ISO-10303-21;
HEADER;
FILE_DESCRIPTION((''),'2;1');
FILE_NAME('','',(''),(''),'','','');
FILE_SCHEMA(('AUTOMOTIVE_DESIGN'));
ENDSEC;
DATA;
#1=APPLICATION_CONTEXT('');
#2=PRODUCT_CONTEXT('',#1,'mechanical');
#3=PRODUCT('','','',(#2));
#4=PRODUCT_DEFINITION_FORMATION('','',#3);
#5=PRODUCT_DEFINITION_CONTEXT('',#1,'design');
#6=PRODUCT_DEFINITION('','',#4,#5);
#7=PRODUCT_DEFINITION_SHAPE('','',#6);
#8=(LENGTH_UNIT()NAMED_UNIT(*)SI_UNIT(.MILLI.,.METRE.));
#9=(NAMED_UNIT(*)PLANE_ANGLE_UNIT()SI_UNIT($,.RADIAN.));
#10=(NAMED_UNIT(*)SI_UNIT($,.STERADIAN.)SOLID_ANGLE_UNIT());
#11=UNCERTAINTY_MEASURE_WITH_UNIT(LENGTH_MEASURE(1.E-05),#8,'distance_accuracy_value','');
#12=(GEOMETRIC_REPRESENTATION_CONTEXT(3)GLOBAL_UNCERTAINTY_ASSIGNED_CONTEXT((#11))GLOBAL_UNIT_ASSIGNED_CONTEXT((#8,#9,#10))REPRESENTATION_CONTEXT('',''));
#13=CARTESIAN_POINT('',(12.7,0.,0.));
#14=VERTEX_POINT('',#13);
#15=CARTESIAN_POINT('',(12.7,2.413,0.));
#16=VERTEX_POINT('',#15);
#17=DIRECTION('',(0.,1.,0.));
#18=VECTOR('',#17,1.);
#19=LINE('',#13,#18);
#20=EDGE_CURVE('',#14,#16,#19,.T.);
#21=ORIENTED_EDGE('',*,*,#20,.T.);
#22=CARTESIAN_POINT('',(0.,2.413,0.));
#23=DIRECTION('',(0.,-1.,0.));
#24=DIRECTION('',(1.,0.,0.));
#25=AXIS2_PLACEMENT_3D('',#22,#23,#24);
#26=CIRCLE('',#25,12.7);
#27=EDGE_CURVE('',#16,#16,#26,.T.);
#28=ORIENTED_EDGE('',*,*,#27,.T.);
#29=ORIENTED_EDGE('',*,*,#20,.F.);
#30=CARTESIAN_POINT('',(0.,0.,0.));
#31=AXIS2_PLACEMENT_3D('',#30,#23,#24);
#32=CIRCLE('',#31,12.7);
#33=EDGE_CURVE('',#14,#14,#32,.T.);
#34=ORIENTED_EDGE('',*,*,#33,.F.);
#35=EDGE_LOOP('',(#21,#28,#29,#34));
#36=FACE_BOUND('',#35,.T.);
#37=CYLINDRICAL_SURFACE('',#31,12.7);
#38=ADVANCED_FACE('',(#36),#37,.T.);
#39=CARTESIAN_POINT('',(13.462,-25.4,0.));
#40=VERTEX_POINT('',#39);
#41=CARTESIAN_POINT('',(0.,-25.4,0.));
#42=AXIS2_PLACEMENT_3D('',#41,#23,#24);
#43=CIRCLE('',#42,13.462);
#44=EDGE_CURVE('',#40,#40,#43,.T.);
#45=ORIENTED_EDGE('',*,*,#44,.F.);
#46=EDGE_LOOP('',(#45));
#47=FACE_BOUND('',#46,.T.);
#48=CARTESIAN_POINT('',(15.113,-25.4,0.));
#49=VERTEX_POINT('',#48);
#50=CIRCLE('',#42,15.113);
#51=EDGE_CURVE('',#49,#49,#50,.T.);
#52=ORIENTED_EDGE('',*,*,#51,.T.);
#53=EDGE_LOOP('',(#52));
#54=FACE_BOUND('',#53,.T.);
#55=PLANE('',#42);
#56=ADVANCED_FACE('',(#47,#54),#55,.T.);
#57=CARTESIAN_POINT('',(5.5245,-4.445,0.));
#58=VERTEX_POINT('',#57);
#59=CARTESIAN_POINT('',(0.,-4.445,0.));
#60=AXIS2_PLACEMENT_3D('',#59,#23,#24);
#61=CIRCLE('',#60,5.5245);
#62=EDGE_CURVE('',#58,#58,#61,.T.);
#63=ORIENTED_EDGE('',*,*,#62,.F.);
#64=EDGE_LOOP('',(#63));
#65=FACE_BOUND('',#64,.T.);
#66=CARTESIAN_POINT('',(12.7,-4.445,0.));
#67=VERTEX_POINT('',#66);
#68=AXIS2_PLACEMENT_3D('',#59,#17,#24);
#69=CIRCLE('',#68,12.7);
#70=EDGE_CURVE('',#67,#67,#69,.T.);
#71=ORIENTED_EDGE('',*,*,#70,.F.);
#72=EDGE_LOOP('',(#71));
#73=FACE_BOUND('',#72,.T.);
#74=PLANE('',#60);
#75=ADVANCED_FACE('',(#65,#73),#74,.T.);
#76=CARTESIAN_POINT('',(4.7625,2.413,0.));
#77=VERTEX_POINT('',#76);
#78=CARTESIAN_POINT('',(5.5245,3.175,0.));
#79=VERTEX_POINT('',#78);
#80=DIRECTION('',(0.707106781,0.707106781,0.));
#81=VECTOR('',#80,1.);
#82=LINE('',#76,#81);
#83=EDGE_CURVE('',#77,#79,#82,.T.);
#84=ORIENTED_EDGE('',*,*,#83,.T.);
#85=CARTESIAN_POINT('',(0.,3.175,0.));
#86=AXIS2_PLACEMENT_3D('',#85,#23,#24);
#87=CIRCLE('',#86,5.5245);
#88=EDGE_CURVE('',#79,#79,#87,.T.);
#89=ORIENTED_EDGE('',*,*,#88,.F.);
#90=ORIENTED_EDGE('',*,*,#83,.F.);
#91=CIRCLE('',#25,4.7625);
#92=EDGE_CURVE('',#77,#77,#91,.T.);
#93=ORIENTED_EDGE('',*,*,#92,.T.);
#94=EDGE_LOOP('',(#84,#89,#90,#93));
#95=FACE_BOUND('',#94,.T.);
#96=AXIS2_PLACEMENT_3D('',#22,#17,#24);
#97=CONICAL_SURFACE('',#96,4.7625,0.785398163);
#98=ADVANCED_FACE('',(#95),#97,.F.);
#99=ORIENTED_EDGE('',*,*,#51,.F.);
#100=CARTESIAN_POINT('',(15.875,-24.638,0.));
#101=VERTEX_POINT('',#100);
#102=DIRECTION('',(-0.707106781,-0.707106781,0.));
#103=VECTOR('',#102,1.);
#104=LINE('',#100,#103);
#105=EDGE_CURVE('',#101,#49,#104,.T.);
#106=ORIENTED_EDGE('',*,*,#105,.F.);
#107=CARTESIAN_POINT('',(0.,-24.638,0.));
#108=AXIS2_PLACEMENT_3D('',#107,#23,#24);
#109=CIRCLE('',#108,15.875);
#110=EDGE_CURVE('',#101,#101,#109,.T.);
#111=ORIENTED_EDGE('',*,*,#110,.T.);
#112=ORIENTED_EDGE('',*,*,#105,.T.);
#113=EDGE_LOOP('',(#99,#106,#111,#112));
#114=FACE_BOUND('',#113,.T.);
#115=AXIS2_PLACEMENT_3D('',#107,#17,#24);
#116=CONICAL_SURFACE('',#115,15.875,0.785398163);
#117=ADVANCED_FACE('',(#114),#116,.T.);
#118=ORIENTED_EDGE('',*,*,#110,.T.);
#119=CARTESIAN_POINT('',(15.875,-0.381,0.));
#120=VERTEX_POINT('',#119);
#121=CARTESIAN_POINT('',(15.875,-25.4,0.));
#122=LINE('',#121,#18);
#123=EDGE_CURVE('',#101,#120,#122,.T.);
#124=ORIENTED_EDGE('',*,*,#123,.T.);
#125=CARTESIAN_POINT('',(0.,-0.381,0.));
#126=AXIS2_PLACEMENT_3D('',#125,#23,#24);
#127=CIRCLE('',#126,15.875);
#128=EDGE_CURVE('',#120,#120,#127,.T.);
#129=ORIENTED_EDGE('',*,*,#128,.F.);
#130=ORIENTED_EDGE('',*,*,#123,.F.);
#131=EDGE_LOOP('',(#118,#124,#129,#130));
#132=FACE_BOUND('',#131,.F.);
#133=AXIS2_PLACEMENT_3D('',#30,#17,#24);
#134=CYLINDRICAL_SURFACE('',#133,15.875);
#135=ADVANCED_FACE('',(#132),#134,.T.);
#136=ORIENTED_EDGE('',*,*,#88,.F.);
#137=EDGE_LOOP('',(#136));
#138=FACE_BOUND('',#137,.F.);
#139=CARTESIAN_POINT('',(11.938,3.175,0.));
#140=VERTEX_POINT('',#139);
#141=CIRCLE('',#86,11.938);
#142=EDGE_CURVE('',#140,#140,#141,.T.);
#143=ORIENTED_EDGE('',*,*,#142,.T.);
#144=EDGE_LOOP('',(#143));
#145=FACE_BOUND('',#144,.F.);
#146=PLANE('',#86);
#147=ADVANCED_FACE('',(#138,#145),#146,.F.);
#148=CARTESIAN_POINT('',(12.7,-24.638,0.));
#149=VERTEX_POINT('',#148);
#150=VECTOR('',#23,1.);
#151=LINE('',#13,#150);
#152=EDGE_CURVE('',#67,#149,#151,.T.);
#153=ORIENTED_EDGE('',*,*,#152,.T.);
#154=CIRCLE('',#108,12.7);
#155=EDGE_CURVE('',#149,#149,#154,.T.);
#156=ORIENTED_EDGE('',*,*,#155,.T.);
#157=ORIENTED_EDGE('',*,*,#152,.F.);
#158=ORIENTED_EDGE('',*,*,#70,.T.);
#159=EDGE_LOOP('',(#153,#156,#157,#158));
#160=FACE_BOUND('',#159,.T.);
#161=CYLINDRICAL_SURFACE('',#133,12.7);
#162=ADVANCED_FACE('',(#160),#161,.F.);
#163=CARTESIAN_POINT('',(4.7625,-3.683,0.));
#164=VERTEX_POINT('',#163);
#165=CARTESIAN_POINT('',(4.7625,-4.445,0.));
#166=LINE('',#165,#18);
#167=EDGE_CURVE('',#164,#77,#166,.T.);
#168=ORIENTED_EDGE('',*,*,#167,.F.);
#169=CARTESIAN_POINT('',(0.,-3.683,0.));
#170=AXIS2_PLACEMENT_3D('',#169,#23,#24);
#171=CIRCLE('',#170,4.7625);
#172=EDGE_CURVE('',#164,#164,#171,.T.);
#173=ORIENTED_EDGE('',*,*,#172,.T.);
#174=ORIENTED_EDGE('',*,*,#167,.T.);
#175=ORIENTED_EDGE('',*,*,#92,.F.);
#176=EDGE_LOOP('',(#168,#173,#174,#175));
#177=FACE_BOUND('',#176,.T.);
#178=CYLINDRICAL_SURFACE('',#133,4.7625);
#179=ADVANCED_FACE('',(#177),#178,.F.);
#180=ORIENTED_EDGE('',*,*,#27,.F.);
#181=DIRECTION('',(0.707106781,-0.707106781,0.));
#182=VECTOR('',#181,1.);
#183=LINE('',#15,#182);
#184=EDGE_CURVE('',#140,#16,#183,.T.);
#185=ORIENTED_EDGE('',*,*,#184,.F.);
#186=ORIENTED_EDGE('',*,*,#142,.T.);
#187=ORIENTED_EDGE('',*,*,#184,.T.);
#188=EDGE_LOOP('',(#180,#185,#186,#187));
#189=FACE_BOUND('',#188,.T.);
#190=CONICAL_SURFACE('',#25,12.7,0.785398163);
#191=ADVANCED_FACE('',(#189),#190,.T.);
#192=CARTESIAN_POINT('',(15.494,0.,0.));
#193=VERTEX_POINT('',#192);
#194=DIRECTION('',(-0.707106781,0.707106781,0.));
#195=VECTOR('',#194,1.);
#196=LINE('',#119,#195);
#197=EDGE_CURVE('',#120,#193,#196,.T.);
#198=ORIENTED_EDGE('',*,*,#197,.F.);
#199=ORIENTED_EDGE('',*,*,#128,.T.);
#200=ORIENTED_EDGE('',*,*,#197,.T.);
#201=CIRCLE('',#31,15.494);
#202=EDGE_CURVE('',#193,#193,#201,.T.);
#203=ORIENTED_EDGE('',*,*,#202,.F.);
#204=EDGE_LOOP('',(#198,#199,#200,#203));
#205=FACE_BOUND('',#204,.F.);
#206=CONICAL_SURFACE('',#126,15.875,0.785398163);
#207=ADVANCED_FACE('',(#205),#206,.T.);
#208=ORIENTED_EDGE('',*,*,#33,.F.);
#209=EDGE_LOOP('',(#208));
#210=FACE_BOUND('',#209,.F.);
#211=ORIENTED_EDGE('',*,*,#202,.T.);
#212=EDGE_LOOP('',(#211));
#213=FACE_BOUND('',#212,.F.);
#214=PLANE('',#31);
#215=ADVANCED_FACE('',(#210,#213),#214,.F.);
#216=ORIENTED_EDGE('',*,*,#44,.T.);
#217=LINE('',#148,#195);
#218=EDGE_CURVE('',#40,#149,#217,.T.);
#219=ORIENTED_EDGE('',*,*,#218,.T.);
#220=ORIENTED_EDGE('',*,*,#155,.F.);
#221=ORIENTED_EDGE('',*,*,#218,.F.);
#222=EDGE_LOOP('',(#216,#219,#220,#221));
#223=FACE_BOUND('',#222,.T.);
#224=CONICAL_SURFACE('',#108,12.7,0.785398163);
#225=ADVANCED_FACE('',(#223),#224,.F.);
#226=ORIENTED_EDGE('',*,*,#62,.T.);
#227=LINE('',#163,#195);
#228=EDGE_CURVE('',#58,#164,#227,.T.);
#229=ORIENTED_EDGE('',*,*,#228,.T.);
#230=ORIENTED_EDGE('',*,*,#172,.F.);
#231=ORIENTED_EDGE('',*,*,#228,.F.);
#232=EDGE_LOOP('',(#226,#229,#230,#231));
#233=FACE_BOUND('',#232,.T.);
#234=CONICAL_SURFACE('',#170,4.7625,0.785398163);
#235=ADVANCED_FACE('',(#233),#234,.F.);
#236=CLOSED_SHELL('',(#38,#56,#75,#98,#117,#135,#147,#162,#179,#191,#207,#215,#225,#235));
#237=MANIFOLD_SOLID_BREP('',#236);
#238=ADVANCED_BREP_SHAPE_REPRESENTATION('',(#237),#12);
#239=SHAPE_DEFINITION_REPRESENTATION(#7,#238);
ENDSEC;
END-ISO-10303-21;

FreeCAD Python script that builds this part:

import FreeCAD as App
import Part
import Sketcher
Q = App.Units.Quantity


def edges_at(feature, points):
    """Names of the edges that pass closest to the given points."""
    edges = feature.Shape.Edges
    near = lambda p: min(range(len(edges)), key=lambda i: edges[i].distToShape(Part.Vertex(*p))[0])
    return sorted({f"Edge{near(p) + 1}" for p in points})

doc = App.newDocument("Part")
params = doc.addObject("Spreadsheet::Sheet", "Params")
for row, (alias, value) in enumerate([
    ("sketch1_diameter", "1 in"),
    ("sketch1_diameter2", "0.375 in"),
    ("pad1_length", "0.125 in"),
    ("sketch2_diameter", "1.25 in"),
    ("sketch2_diameter2", "0.375 in"),
    ("pad2_length", "0.175 in"),
    ("sketch3_diameter", "1 in"),
    ("sketch3_diameter2", "1.25 in"),
    ("pad3_length", "1 in"),
    ("chamfer_size", "0.03 in"),
    ("chamfer2_size", "0.015 in"),
], start=1):
    params.set(f"A{row}", alias)
    params.set(f"B{row}", "=" + value)
    params.setAlias(f"B{row}", alias)

body = doc.addObject("PartDesign::Body", "Body")

sketch1 = body.newObject("Sketcher::SketchObject", "Sketch")
sketch1.AttachmentSupport = (doc.getObject("XZ_Plane"), [""])
sketch1.MapMode = "FlatFace"
sketch1.addGeometry(Part.Circle(App.Vector(0, 0, 0), App.Vector(0, 0, 1), 12.7), False)
sketch1.addGeometry(Part.Circle(App.Vector(0, 0, 0), App.Vector(0, 0, 1), 4.7625), False)
sketch1.addConstraint(Sketcher.Constraint("Coincident", 0, 3, -1, 1))
sketch1.addConstraint(Sketcher.Constraint("Coincident", 1, 3, -1, 1))
sketch1.addConstraint(Sketcher.Constraint("Diameter", 0, Q("1 in")))
sketch1.addConstraint(Sketcher.Constraint("Diameter", 1, Q("0.375 in")))
sketch1.setExpression("Constraints[2]", "Params.sketch1_diameter")
sketch1.setExpression("Constraints[3]", "Params.sketch1_diameter2")
pad1 = body.newObject("PartDesign::Pad", "Pad")
pad1.Profile = sketch1
pad1.setExpression("Length", "Params.pad1_length")
pad1.Reversed = True

sketch2 = body.newObject("Sketcher::SketchObject", "Sketch001")
sketch2.AttachmentSupport = (doc.getObject("XZ_Plane"), [""])
sketch2.MapMode = "FlatFace"
sketch2.addGeometry(Part.Circle(App.Vector(0, 0, 0), App.Vector(0, 0, 1), 15.875), False)
sketch2.addGeometry(Part.Circle(App.Vector(0, 0, 0), App.Vector(0, 0, 1), 4.7625), False)
sketch2.addConstraint(Sketcher.Constraint("Coincident", 0, 3, -1, 1))
sketch2.addConstraint(Sketcher.Constraint("Coincident", 1, 3, -1, 1))
sketch2.addConstraint(Sketcher.Constraint("Diameter", 0, Q("1.25 in")))
sketch2.addConstraint(Sketcher.Constraint("Diameter", 1, Q("0.375 in")))
sketch2.setExpression("Constraints[2]", "Params.sketch2_diameter")
sketch2.setExpression("Constraints[3]", "Params.sketch2_diameter2")
pad2 = body.newObject("PartDesign::Pad", "Pad001")
pad2.Profile = sketch2
pad2.setExpression("Length", "Params.pad2_length")

sketch3 = body.newObject("Sketcher::SketchObject", "Sketch002")
sketch3.AttachmentSupport = (doc.getObject("XZ_Plane"), [""])
sketch3.MapMode = "FlatFace"
sketch3.addGeometry(Part.Circle(App.Vector(0, 0, 0), App.Vector(0, 0, 1), 15.875), False)
sketch3.addGeometry(Part.Circle(App.Vector(0, 0, 0), App.Vector(0, 0, 1), 12.7), False)
sketch3.addConstraint(Sketcher.Constraint("Coincident", 0, 3, -1, 1))
sketch3.addConstraint(Sketcher.Constraint("Coincident", 1, 3, -1, 1))
sketch3.addConstraint(Sketcher.Constraint("Diameter", 1, Q("1 in")))
sketch3.addConstraint(Sketcher.Constraint("Diameter", 0, Q("1.25 in")))
sketch3.setExpression("Constraints[2]", "Params.sketch3_diameter")
sketch3.setExpression("Constraints[3]", "Params.sketch3_diameter2")
pad3 = body.newObject("PartDesign::Pad", "Pad002")
pad3.Profile = sketch3
pad3.setExpression("Length", "Params.pad3_length")
doc.recompute()

chamfer = body.newObject("PartDesign::Chamfer", "Chamfer")
chamfer.Base = (pad3, edges_at(pad3, [
    (-12.7, -25.4, 0),
    (-15.875, -25.4, 0),
    (-4.763, -4.445, 0),
    (-12.7, 3.175, 0),
    (-4.763, 3.175, 0),
]))
chamfer.setExpression("Size", "Params.chamfer_size")
doc.recompute()

chamfer2 = body.newObject("PartDesign::Chamfer", "Chamfer001")
chamfer2.Base = (chamfer, edges_at(chamfer, [(-15.875, 0, 0)]))
chamfer2.setExpression("Size", "Params.chamfer2_size")

doc.recompute()
